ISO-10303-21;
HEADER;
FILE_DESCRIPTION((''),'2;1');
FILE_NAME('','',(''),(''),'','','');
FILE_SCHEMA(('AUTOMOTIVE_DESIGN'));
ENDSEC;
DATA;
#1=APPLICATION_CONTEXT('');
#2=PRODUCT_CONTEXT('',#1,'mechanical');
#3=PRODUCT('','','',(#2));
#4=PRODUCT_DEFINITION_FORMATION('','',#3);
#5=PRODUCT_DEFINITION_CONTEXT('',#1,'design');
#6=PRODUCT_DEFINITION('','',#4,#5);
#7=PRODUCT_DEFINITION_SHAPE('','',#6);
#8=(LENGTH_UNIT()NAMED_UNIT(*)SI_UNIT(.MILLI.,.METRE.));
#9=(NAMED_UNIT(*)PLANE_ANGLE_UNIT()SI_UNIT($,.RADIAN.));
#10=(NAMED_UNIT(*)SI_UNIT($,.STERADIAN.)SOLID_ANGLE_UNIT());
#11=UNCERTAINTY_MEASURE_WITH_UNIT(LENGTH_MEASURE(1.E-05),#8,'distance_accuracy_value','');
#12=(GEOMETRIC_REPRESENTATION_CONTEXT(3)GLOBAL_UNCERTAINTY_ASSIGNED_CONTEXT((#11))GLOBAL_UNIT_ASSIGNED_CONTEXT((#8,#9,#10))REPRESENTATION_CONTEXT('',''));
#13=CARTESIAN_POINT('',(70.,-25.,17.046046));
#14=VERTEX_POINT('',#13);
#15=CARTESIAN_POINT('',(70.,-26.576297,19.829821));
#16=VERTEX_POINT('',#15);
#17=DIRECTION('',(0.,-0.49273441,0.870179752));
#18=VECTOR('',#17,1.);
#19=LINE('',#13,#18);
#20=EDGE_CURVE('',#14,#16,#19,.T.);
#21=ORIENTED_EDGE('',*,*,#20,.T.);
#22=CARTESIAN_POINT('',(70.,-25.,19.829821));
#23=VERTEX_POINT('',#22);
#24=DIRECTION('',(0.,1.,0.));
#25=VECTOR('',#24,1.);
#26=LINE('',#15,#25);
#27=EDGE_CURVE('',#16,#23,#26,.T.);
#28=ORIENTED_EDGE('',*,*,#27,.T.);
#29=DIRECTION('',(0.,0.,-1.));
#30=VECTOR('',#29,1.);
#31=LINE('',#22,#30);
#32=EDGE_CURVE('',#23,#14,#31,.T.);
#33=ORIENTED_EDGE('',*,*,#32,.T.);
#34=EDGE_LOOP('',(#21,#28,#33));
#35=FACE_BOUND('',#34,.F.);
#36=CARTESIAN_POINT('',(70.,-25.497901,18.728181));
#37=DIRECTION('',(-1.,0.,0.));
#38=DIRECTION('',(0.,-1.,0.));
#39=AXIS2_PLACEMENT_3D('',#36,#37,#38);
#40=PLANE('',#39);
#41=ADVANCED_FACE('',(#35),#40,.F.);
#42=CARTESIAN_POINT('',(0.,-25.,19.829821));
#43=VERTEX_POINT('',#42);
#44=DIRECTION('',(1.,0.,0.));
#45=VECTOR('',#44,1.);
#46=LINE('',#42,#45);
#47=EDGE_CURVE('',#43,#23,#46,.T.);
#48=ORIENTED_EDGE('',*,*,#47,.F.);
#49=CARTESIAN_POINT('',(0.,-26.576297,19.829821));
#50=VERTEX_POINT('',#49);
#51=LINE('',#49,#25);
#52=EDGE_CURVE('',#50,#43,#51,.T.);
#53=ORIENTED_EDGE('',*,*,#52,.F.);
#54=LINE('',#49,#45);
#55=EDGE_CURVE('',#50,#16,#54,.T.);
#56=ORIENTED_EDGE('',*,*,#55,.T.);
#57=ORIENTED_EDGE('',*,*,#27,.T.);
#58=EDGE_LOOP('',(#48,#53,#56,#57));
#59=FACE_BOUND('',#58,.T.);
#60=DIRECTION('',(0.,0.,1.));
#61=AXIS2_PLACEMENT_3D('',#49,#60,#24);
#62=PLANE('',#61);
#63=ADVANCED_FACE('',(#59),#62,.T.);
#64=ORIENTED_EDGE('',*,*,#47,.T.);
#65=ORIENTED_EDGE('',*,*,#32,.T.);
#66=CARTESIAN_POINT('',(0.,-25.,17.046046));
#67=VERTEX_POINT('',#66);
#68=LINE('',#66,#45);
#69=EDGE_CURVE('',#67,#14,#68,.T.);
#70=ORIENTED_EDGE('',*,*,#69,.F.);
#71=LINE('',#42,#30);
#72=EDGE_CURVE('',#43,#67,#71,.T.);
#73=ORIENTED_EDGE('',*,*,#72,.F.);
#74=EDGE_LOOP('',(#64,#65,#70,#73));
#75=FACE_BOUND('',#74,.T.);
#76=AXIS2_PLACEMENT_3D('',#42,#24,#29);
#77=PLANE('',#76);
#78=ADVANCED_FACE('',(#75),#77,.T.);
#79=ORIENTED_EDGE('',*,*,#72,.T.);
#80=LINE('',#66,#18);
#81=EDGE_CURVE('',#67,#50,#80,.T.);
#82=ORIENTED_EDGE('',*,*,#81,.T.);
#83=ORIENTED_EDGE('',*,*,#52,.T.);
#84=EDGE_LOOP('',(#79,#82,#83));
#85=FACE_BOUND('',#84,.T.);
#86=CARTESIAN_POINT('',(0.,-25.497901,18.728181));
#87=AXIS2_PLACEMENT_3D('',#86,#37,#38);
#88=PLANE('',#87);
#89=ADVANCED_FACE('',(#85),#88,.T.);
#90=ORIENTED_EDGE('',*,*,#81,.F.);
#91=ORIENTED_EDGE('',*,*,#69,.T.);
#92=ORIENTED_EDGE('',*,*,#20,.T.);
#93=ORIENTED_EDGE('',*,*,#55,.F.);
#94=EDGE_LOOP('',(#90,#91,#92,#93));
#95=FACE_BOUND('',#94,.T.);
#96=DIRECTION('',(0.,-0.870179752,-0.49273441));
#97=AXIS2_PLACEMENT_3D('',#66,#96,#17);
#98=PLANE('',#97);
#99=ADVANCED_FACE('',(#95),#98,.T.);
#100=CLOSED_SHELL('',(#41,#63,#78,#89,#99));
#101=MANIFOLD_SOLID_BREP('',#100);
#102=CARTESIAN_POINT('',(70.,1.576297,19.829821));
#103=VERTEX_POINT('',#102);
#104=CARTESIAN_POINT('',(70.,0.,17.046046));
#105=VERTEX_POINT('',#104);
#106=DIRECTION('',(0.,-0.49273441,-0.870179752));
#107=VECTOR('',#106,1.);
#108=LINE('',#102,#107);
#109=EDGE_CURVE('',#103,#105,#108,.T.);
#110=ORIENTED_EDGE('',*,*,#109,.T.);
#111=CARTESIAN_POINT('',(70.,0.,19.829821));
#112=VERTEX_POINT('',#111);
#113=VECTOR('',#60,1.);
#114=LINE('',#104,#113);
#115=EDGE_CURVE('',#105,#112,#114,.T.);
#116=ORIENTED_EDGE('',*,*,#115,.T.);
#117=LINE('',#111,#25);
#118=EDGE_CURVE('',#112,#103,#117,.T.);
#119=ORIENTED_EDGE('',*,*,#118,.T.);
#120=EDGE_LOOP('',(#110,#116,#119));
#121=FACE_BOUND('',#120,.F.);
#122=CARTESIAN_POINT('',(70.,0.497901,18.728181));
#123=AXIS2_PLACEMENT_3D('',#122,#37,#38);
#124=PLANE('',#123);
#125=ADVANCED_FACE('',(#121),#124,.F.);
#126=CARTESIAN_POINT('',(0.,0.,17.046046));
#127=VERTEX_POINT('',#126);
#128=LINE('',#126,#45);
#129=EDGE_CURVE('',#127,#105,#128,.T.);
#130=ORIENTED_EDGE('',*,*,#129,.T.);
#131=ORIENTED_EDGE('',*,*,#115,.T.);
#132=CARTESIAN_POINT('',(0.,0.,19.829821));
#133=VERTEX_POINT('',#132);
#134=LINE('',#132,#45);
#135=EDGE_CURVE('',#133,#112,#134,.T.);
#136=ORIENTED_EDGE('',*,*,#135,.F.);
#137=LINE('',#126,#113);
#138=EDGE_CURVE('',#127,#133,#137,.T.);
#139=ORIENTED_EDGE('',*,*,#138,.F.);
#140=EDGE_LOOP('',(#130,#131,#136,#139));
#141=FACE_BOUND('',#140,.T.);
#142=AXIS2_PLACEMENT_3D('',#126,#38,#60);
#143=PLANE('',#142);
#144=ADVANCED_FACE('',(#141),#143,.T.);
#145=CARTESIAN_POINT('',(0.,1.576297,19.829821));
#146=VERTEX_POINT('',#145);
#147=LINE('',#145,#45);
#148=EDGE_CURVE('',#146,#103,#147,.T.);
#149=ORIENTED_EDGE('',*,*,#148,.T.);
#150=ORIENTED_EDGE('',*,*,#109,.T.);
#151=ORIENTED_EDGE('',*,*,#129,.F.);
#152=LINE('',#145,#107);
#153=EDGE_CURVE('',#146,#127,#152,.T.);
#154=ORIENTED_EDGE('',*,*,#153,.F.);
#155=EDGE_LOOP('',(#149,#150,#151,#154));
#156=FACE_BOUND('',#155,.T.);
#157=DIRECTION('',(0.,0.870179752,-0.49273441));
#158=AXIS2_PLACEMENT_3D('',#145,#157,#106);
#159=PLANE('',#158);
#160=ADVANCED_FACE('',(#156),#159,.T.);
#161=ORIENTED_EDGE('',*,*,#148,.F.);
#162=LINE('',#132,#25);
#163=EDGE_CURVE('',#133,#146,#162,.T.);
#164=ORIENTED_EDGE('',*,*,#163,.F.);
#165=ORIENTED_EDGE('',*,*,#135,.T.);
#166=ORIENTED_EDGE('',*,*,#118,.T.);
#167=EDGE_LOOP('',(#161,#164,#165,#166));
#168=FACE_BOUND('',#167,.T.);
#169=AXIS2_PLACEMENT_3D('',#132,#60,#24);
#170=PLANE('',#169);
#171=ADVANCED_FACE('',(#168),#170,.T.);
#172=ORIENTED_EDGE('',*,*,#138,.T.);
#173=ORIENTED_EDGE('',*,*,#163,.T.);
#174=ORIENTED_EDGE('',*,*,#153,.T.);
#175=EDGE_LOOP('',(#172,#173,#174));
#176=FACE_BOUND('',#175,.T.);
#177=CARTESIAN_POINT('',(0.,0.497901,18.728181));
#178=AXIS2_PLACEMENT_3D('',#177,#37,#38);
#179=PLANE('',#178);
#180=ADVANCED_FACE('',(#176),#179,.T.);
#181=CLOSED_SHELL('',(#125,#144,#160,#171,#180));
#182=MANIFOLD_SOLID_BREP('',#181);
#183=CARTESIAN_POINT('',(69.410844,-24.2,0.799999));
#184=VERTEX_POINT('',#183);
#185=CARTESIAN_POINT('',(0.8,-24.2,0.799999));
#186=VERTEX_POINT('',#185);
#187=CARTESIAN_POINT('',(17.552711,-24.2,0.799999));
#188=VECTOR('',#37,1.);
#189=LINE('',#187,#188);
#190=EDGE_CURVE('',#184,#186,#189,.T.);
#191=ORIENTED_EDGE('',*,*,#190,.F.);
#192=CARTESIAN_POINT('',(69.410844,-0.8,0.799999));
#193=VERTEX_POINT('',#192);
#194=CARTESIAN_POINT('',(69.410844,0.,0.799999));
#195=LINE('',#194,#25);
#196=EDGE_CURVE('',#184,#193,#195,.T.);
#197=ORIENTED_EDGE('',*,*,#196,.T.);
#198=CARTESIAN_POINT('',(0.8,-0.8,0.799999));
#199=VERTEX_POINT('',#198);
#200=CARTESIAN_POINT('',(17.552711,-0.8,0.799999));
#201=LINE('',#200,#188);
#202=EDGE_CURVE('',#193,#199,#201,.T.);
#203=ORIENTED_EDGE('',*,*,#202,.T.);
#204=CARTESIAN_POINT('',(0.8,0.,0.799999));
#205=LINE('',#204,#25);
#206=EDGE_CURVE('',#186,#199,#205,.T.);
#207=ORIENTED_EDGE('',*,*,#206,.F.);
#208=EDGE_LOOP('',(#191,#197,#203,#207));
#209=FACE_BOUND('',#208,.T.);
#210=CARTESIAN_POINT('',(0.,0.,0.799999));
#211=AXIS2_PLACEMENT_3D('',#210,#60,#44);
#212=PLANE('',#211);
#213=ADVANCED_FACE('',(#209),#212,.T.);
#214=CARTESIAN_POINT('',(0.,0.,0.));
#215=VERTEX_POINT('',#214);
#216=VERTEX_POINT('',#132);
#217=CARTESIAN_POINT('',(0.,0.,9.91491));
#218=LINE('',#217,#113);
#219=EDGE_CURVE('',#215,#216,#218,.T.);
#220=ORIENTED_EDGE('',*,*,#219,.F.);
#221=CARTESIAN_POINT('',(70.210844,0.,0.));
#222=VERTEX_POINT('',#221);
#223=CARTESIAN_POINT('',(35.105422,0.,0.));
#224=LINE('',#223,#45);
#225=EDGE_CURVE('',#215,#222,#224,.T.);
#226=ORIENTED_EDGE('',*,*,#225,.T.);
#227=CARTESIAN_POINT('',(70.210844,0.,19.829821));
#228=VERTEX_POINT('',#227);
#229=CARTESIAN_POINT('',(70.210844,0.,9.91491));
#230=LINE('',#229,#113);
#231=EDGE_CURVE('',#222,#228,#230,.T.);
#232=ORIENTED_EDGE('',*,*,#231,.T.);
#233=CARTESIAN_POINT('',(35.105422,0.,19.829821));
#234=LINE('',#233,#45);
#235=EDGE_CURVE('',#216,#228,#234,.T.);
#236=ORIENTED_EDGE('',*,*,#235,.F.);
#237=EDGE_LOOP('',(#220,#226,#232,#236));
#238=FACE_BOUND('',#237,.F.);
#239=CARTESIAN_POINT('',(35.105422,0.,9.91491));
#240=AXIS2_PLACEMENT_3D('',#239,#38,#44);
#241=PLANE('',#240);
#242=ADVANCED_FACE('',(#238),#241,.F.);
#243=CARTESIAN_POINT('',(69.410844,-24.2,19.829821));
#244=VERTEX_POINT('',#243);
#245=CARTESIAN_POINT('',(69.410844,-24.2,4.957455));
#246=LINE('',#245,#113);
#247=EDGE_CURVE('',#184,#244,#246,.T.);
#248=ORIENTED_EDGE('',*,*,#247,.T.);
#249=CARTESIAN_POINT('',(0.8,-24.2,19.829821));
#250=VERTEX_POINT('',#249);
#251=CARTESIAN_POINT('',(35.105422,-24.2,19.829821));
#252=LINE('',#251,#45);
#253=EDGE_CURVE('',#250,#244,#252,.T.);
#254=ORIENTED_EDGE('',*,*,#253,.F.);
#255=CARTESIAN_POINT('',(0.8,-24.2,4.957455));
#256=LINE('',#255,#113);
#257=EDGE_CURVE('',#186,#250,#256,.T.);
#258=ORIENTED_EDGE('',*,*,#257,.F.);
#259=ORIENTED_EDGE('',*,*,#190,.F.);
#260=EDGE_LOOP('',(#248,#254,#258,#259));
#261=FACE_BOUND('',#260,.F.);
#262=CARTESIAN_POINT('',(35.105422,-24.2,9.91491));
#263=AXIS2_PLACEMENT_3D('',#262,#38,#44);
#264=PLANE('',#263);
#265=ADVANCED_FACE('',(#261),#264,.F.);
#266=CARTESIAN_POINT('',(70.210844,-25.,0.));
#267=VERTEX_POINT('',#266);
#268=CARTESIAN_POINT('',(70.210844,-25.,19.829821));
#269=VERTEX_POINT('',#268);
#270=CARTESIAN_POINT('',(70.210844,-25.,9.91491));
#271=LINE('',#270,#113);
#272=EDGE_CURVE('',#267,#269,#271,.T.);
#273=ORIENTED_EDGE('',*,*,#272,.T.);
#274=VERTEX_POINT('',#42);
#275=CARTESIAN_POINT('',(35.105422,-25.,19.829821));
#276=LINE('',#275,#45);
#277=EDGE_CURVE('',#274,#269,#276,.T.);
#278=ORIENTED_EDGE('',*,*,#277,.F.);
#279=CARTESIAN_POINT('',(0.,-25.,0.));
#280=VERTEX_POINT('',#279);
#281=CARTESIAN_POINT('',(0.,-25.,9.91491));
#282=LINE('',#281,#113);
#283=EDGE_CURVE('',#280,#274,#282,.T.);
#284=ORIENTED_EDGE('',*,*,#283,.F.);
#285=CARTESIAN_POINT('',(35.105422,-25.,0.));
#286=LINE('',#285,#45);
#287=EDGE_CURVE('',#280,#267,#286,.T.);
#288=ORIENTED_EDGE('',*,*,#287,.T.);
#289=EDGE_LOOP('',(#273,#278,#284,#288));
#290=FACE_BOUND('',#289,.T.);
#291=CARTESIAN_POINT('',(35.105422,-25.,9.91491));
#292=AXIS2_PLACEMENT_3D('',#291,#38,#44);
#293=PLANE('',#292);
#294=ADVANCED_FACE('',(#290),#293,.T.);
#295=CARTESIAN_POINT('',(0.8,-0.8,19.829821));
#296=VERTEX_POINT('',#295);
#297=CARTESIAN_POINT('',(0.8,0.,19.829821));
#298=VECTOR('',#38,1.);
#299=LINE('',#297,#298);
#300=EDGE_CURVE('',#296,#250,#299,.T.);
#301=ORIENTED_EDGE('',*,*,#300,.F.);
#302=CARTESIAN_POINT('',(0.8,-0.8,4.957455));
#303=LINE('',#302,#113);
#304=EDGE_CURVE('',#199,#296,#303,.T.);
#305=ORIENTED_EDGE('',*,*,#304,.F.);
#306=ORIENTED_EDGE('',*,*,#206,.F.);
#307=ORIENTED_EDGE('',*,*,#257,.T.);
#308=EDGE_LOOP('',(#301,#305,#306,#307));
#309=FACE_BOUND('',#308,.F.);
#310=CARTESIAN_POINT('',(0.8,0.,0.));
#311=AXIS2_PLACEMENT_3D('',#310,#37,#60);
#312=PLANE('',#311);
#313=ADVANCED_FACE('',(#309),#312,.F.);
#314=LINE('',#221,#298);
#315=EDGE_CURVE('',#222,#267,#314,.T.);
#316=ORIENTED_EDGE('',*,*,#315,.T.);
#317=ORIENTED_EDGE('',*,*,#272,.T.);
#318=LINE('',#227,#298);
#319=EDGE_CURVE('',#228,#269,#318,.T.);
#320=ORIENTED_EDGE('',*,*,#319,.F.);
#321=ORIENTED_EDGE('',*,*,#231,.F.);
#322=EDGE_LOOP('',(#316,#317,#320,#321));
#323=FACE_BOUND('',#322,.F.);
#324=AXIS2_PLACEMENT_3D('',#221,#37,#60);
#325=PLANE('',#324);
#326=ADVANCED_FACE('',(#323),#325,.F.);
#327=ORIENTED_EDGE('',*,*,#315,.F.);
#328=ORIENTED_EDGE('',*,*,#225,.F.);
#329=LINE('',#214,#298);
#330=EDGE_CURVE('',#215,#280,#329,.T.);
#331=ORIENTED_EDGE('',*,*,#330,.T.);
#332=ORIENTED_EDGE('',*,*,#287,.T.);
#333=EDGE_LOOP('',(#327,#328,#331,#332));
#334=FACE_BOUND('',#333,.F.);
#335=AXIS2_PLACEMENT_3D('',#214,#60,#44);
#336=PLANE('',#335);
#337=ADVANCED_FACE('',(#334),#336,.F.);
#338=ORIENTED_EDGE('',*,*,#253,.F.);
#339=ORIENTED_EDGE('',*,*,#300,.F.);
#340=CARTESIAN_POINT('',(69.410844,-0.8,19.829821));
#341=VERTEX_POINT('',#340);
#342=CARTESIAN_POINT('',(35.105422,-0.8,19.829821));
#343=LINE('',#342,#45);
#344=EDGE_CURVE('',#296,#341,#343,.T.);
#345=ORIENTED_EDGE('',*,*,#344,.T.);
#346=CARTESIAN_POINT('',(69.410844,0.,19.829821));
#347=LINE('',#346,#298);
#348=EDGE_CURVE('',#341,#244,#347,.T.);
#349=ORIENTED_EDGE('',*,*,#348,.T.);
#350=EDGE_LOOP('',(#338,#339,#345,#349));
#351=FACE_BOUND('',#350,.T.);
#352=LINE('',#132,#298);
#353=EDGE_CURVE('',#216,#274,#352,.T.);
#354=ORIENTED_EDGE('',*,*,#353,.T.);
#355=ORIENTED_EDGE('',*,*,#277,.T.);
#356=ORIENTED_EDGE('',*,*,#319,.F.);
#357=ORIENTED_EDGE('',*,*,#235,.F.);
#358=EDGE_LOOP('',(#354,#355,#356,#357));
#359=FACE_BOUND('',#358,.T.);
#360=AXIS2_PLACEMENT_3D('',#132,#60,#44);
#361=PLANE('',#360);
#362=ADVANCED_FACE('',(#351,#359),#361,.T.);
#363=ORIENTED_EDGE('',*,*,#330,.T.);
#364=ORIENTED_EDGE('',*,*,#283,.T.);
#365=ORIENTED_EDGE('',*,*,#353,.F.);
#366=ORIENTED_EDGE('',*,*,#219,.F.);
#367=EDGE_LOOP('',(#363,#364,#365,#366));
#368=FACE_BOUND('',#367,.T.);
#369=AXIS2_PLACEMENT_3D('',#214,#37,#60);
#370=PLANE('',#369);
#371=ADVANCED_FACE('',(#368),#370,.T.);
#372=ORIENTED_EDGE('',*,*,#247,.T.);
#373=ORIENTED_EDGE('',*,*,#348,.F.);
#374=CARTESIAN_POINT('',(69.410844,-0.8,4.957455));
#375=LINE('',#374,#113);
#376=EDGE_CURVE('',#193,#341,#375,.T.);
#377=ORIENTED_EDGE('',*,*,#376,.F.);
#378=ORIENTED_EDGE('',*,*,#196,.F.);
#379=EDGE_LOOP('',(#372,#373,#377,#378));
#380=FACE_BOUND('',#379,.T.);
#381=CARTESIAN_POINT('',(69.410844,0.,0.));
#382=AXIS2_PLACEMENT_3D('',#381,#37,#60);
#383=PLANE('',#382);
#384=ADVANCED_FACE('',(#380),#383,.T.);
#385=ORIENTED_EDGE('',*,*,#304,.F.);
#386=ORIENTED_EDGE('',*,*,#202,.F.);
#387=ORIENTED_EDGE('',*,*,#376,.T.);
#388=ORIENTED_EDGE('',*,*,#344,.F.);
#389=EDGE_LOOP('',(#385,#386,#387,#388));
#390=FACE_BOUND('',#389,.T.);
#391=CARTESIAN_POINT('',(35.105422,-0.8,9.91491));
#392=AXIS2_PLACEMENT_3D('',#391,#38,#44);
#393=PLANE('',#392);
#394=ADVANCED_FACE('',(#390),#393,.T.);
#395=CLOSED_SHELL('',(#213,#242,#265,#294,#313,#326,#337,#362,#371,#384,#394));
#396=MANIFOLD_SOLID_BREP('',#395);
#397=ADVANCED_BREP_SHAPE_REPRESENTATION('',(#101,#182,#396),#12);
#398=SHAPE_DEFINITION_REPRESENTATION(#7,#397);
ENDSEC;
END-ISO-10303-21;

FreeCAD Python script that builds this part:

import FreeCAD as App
import Part
import Sketcher
from FreeCAD import Vector


def faces_at(feature, points):
    """Names of the faces that lie closest to the given points."""
    faces = feature.Shape.Faces
    near = lambda p: min(range(len(faces)), key=lambda i: faces[i].distToShape(Part.Vertex(*p))[0])
    return sorted({f"Face{near(p) + 1}" for p in points})


def add_polygon(sketch, points):
    """Adds a closed chain of lines whose ends are joined by coincident constraints."""
    first, n = sketch.GeometryCount, len(points)
    for a, b in zip(points, points[1:] + points[:1]):
        sketch.addGeometry(Part.LineSegment(App.Vector(*a, 0), App.Vector(*b, 0)), False)
    for i in range(n):
        sketch.addConstraint(Sketcher.Constraint("Coincident", first + i, 2, first + (i + 1) % n, 1))

doc = App.newDocument("Part")
body = doc.addObject("PartDesign::Body", "Body")

# Sketch on XZ plane
sketch1 = body.newObject("Sketcher::SketchObject", "Sketch")
sketch1.AttachmentSupport = (doc.getObject("XZ_Plane"), [""])
sketch1.MapMode = "FlatFace"
add_polygon(sketch1, [(0, 20), (0, 0), (70, 0), (70, 20)])  # lines 0-3
sketch1.addConstraint([
    Sketcher.Constraint("Vertical", 0),
    Sketcher.Constraint("Horizontal", 1),
    Sketcher.Constraint("Vertical", 2),
    Sketcher.Constraint("Horizontal", 3),
    Sketcher.Constraint("Coincident", 0, 2, -1, 1),
    Sketcher.Constraint("DistanceY", 0, 2, 0, 1, 19.829821),
    Sketcher.Constraint("DistanceX", 1, 1, 1, 2, 70.210844),
])
pad1 = body.newObject("PartDesign::Pad", "Pad")
pad1.Profile = sketch1
pad1.Length = 25
doc.recompute()

thickness = body.newObject("PartDesign::Thickness", "Thickness")
thickness.Base = (pad1, faces_at(pad1, [(35.105, -12.5, 19.83)]))
thickness.Value = 0.8
thickness.Reversed = True
thickness.Join = "Arc"
body2 = doc.addObject("PartDesign::Body", "Body001")
body2.AllowCompound = True

# Sketch on YZ plane
sketch2 = body2.newObject("Sketcher::SketchObject", "Sketch001")
sketch2.AttachmentSupport = (doc.getObject("YZ_Plane001"), [""])
sketch2.MapMode = "FlatFace"
add_polygon(sketch2, [(-26.6, 19.8), (-25, 19.8), (-25, 17)])  # lines 0-2
add_polygon(sketch2, [(0, 17), (0, 19.8), (1.6, 19.8)])  # lines 3-5
sketch2.addConstraint([
    Sketcher.Constraint("Horizontal", 0),
    Sketcher.Constraint("Vertical", 1),
    Sketcher.Constraint("Vertical", 3),
    Sketcher.Constraint("Horizontal", 4),
    Sketcher.Constraint("PointOnObject", 3, 2, -2),
    Sketcher.Constraint("Horizontal", 2, 2, 3, 2),
    Sketcher.Constraint("Horizontal", 1, 2, 5, 2),
    Sketcher.Constraint("Equal", 0, 4),
    Sketcher.Constraint("DistanceX", 0, 2, -1, 1, 25.0),
    Sketcher.Constraint("Distance", 2, 3.19908),
    Sketcher.Constraint("DistanceX", 0, 1, 0, 2, 1.576297),
    Sketcher.Constraint("DistanceY", -1, 1, 0, 2, 19.829821),
])
pad2 = body2.newObject("PartDesign::Pad", "Pad001")
pad2.Profile = sketch2
pad2.Length = 70

doc.recompute()
